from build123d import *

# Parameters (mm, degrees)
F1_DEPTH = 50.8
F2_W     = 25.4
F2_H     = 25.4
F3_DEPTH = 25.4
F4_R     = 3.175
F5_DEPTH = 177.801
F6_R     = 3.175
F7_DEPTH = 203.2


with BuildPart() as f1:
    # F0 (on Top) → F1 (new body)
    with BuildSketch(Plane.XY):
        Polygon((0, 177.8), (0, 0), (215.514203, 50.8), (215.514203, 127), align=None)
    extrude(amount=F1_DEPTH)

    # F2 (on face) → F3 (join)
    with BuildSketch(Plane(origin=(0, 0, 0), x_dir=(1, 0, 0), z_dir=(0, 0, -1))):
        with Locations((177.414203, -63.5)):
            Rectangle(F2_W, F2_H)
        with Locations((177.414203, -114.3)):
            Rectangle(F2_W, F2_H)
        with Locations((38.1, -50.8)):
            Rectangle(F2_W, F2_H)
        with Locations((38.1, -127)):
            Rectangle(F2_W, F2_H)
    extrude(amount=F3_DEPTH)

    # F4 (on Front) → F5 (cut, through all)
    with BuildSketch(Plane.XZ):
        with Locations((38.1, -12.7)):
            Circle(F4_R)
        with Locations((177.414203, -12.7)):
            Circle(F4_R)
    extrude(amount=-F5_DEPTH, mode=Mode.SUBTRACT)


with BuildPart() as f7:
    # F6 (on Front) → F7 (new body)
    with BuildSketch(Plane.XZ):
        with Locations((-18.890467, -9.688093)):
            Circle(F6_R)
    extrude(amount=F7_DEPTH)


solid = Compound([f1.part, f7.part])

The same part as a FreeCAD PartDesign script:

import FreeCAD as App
import Part
import Sketcher
Q = App.Units.Quantity


def add_polygon(sketch, points):
    """Adds a closed chain of lines whose ends are joined by coincident constraints."""
    first, n = sketch.GeometryCount, len(points)
    for a, b in zip(points, points[1:] + points[:1]):
        sketch.addGeometry(Part.LineSegment(App.Vector(*a, 0), App.Vector(*b, 0)), False)
    for i in range(n):
        sketch.addConstraint(Sketcher.Constraint("Coincident", first + i, 2, first + (i + 1) % n, 1))

doc = App.newDocument("Part")
body = doc.addObject("PartDesign::Body", "Body")

# Sketch on XY plane
sketch1 = body.newObject("Sketcher::SketchObject", "Sketch")
sketch1.AttachmentSupport = (doc.getObject("XY_Plane"), [""])
sketch1.MapMode = "FlatFace"
add_polygon(sketch1, [(0, 177.8), (0, 0), (215.514203, 50.8), (215.514203, 127)])  # lines 0-3
sketch1.addConstraint(Sketcher.Constraint("Vertical", 0))
sketch1.addConstraint(Sketcher.Constraint("Vertical", 2))
sketch1.addConstraint(Sketcher.Constraint("Coincident", 0, 2, -1, 1))
sketch1.addConstraint(Sketcher.Constraint("Equal", 1, 3))
sketch1.addConstraint(Sketcher.Constraint("DistanceY", 0, 2, 0, 1, Q("7 in")))
sketch1.addConstraint(Sketcher.Constraint("DistanceY", 2, 1, 2, 2, Q("3 in")))
sketch1.addConstraint(Sketcher.Constraint("Distance", 1, 221.420441))
pad1 = body.newObject("PartDesign::Pad", "Pad")
pad1.Profile = sketch1
pad1.Length = Q("2 in")

# Sketch on XY plane
sketch2 = body.newObject("Sketcher::SketchObject", "Sketch001")
sketch2.AttachmentSupport = (doc.getObject("XY_Plane"), [""])
sketch2.MapMode = "FlatFace"
add_polygon(sketch2, [(164.714203, 50.8), (164.714203, 76.2), (190.114203, 76.2), (190.114203, 50.8)])  # lines 0-3
add_polygon(sketch2, [(164.714203, 101.6), (164.714203, 127), (190.114203, 127), (190.114203, 101.6)])  # lines 4-7
add_polygon(sketch2, [(25.4, 38.1), (25.4, 63.5), (50.8, 63.5), (50.8, 38.1)])  # lines 8-11
add_polygon(sketch2, [(25.4, 114.3), (25.4, 139.7), (50.8, 139.7), (50.8, 114.3)])  # lines 12-15
sketch2.addConstraint(Sketcher.Constraint("Vertical", 0))
sketch2.addConstraint(Sketcher.Constraint("Horizontal", 1))
sketch2.addConstraint(Sketcher.Constraint("Vertical", 2))
sketch2.addConstraint(Sketcher.Constraint("Horizontal", 3))
sketch2.addConstraint(Sketcher.Constraint("Vertical", 4))
sketch2.addConstraint(Sketcher.Constraint("Horizontal", 5))
sketch2.addConstraint(Sketcher.Constraint("Vertical", 6))
sketch2.addConstraint(Sketcher.Constraint("Horizontal", 7))
sketch2.addConstraint(Sketcher.Constraint("Vertical", 8))
sketch2.addConstraint(Sketcher.Constraint("Horizontal", 9))
sketch2.addConstraint(Sketcher.Constraint("Vertical", 10))
sketch2.addConstraint(Sketcher.Constraint("Horizontal", 11))
sketch2.addConstraint(Sketcher.Constraint("Vertical", 12))
sketch2.addConstraint(Sketcher.Constraint("Horizontal", 13))
sketch2.addConstraint(Sketcher.Constraint("Vertical", 14))
sketch2.addConstraint(Sketcher.Constraint("Horizontal", 15))
sketch2.addConstraint(Sketcher.Constraint("Vertical", 3, 2, 4, 2))
sketch2.addConstraint(Sketcher.Constraint("Vertical", 2, 2, 5, 2))
sketch2.addConstraint(Sketcher.Constraint("Vertical", 11, 2, 12, 2))
sketch2.addConstraint(Sketcher.Constraint("Vertical", 10, 2, 13, 2))
sketch2.addConstraint(Sketcher.Constraint("Equal", 7, 9))
sketch2.addConstraint(Sketcher.Constraint("Equal", 15, 0))
sketch2.addConstraint(Sketcher.Constraint("Equal", 2, 4))
sketch2.addConstraint(Sketcher.Constraint("Equal", 6, 8))
sketch2.addConstraint(Sketcher.Constraint("Equal", 10, 12))
sketch2.addConstraint(Sketcher.Constraint("DistanceX", 1, 1, 1, 2, Q("1 in")))
sketch2.addConstraint(Sketcher.Constraint("DistanceY", -1, 1, 0, 2, Q("3 in")))
sketch2.addConstraint(Sketcher.Constraint("DistanceY", -1, 1, 4, 2, Q("5 in")))
sketch2.addConstraint(Sketcher.Constraint("DistanceX", -1, 1, 8, 2, Q("1 in")))
sketch2.addConstraint(Sketcher.Constraint("DistanceY", 8, 2, 12, 2, Q("3 in")))
sketch2.addConstraint(Sketcher.Constraint("DistanceY", -1, 1, 8, 2, Q("2.5 in")))
sketch2.addConstraint(Sketcher.Constraint("DistanceX", -1, 1, 0, 2, 164.714203))
pad2 = body.newObject("PartDesign::Pad", "Pad001")
pad2.Profile = sketch2
pad2.Length = Q("1 in")
pad2.Reversed = True

# Sketch on XZ plane
sketch3 = body.newObject("Sketcher::SketchObject", "Sketch002")
sketch3.AttachmentSupport = (doc.getObject("XZ_Plane"), [""])
sketch3.MapMode = "FlatFace"
sketch3.addGeometry(Part.Circle(App.Vector(38.1, -12.7, 0), App.Vector(0, 0, 1), 3.175), False)
sketch3.addGeometry(Part.Circle(App.Vector(177.414203, -12.7, 0), App.Vector(0, 0, 1), 3.175), False)
sketch3.addConstraint(Sketcher.Constraint("Equal", 0, 1))
sketch3.addConstraint(Sketcher.Constraint("Horizontal", 0, 3, 1, 3))
sketch3.addConstraint(Sketcher.Constraint("Diameter", 0, Q("0.25 in")))
sketch3.addConstraint(Sketcher.Constraint("DistanceX", -1, 1, 0, 3, Q("1.5 in")))
sketch3.addConstraint(Sketcher.Constraint("DistanceY", 0, 3, -1, 1, Q("0.5 in")))
sketch3.addConstraint(Sketcher.Constraint("DistanceX", -1, 1, 1, 3, 177.414203))
pocket1 = body.newObject("PartDesign::Pocket", "Pocket")
pocket1.Profile = sketch3
pocket1.Type = "ThroughAll"
body2 = doc.addObject("PartDesign::Body", "Body001")

# Sketch on XZ plane
sketch4 = body2.newObject("Sketcher::SketchObject", "Sketch003")
sketch4.AttachmentSupport = (doc.getObject("XZ_Plane001"), [""])
sketch4.MapMode = "FlatFace"
sketch4.addGeometry(Part.Circle(App.Vector(-18.890467, -9.688093, 0), App.Vector(0, 0, 1), 3.175), False)
sketch4.addConstraint(Sketcher.Constraint("Diameter", 0, Q("0.25 in")))
sketch4.addConstraint(Sketcher.Constraint("DistanceX", 0, 3, -1, 1, 18.890467))
sketch4.addConstraint(Sketcher.Constraint("DistanceY", 0, 3, -1, 1, 9.688093))
pad3 = body2.newObject("PartDesign::Pad", "Pad002")
pad3.Profile = sketch4
pad3.Length = Q("8 in")

doc.recompute()
